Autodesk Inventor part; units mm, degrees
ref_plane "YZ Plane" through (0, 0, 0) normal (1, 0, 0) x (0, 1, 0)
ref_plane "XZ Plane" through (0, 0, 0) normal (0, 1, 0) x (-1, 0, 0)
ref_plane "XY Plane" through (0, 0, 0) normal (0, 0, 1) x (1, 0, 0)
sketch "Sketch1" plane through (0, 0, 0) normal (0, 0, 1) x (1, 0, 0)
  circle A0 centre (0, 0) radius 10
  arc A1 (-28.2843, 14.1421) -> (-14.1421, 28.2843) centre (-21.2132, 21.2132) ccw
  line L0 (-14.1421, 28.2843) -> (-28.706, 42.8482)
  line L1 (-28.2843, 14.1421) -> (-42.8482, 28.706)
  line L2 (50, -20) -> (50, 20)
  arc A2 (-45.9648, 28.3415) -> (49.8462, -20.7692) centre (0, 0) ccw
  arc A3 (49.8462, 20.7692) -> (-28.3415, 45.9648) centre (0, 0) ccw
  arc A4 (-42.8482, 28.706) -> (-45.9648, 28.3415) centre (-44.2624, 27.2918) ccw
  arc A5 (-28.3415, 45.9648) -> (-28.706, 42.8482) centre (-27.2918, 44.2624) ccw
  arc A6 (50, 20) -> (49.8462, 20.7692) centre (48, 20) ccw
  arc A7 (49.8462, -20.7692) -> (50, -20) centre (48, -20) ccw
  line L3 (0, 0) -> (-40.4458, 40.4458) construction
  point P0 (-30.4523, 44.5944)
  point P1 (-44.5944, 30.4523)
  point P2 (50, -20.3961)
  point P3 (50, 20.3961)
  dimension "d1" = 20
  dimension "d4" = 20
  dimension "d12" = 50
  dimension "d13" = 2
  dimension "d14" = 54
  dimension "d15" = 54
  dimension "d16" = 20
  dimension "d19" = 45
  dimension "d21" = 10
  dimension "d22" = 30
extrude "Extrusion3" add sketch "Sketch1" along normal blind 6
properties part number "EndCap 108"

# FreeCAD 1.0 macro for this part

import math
import FreeCAD as App
import Part
import Sketcher

V = App.Vector
Q = App.Units.Quantity

doc = App.newDocument("Part")
body = doc.addObject("PartDesign::Body", "Body")

# Sketch on XY plane
sketch1 = body.newObject("Sketcher::SketchObject", "Sketch")
sketch1.AttachmentSupport = (doc.getObject("XY_Plane"), [""])
sketch1.MapMode = "FlatFace"
sketch1.addGeometry(Part.ArcOfCircle(Part.Circle(V(-21.2, 21.2, 0), V(0, 0, 1), 10), math.radians(-135), math.radians(45)), False)
sketch1.addGeometry(Part.LineSegment(V(-28.3, 14.1, 0), V(-42.8, 28.7, 0)), False)
sketch1.addGeometry(Part.ArcOfCircle(Part.Circle(V(-44.3, 27.3, 0), V(0, 0, 1), 2), math.radians(45), math.radians(148)), False)
sketch1.addGeometry(Part.ArcOfCircle(Part.Circle(V(0, 0, 0), V(0, 0, 1), 54), math.radians(148), math.radians(337)), False)
sketch1.addGeometry(Part.ArcOfCircle(Part.Circle(V(48, -20, 0), V(0, 0, 1), 2), math.radians(-23), math.radians(0)), False)
sketch1.addGeometry(Part.LineSegment(V(50, -20, 0), V(50, 20, 0)), False)
sketch1.addGeometry(Part.ArcOfCircle(Part.Circle(V(48, 20, 0), V(0, 0, 1), 2), math.radians(0), math.radians(23)), False)
sketch1.addGeometry(Part.ArcOfCircle(Part.Circle(V(0, 0, 0), V(0, 0, 1), 54), math.radians(23), math.radians(122)), False)
sketch1.addGeometry(Part.ArcOfCircle(Part.Circle(V(-27.3, 44.3, 0), V(0, 0, 1), 2), math.radians(122), math.radians(225)), False)
sketch1.addGeometry(Part.LineSegment(V(-28.7, 42.8, 0), V(-14.1, 28.3, 0)), False)
sketch1.addGeometry(Part.Circle(V(0, 0, 0), V(0, 0, 1), 10), False)
sketch1.addConstraint(Sketcher.Constraint("Tangent", 0, 1, 1, 1))
sketch1.addConstraint(Sketcher.Constraint("Tangent", 1, 2, 2, 1))
sketch1.addConstraint(Sketcher.Constraint("Tangent", 2, 2, 3, 1))
sketch1.addConstraint(Sketcher.Constraint("Tangent", 3, 2, 4, 1))
sketch1.addConstraint(Sketcher.Constraint("Tangent", 4, 2, 5, 1))
sketch1.addConstraint(Sketcher.Constraint("Tangent", 5, 2, 6, 1))
sketch1.addConstraint(Sketcher.Constraint("Tangent", 6, 2, 7, 1))
sketch1.addConstraint(Sketcher.Constraint("Tangent", 7, 2, 8, 1))
sketch1.addConstraint(Sketcher.Constraint("Tangent", 8, 2, 9, 1))
sketch1.addConstraint(Sketcher.Constraint("Tangent", 9, 2, 0, 2))
sketch1.addConstraint(Sketcher.Constraint("Vertical", 5))
sketch1.addConstraint(Sketcher.Constraint("Coincident", 3, 3, -1, 1))
sketch1.addConstraint(Sketcher.Constraint("Coincident", 7, 3, -1, 1))
sketch1.addConstraint(Sketcher.Constraint("Coincident", 10, 3, -1, 1))
sketch1.addConstraint(Sketcher.Constraint("Equal", 2, 4))
sketch1.addConstraint(Sketcher.Constraint("Equal", 4, 6))
sketch1.addConstraint(Sketcher.Constraint("Equal", 3, 7))
sketch1.addConstraint(Sketcher.Constraint("Equal", 6, 8))
sketch1.addConstraint(Sketcher.Constraint("Equal", 0, 10))
sketch1.addConstraint(Sketcher.Constraint("Parallel", 1, 9))
sketch1.addConstraint(Sketcher.Constraint("Equal", 1, 9))
sketch1.addConstraint(Sketcher.Constraint("Diameter", 10, 20.0))
sketch1.addConstraint(Sketcher.Constraint("Radius", 2, 2.0))
sketch1.addConstraint(Sketcher.Constraint("Radius", 3, 54.0))
sketch1.addConstraint(Sketcher.Constraint("Angle", 9, Q("-45 deg")))
sketch1.addConstraint(Sketcher.Constraint("DistanceY", 4, 3, -1, 1, 20.0))
sketch1.addConstraint(Sketcher.Constraint("DistanceY", -1, 1, 0, 1, 14.142))
pad1 = body.newObject("PartDesign::Pad", "Pad")
pad1.Profile = sketch1
pad1.Length = 6

doc.recompute()
